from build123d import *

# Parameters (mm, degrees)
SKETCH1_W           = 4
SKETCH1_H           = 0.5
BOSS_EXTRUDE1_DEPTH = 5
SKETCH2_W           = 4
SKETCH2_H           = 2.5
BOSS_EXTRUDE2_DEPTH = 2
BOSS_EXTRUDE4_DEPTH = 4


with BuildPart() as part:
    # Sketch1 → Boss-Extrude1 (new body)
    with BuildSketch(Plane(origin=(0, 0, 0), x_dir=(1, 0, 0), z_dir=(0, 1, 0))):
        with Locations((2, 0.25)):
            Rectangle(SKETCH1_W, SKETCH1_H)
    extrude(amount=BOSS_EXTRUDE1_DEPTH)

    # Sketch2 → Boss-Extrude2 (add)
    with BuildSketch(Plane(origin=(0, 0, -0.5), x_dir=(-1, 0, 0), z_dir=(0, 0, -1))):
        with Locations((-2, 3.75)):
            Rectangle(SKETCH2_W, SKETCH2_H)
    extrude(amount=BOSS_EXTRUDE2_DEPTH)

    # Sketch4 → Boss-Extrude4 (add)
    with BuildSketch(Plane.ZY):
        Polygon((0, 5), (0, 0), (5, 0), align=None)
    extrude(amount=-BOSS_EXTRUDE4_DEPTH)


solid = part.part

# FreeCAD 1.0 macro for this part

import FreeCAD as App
import Part
import Sketcher
Q = App.Units.Quantity


def add_polygon(sketch, points):
    """Adds a closed chain of lines whose ends are joined by coincident constraints."""
    first, n = sketch.GeometryCount, len(points)
    for a, b in zip(points, points[1:] + points[:1]):
        sketch.addGeometry(Part.LineSegment(App.Vector(*a, 0), App.Vector(*b, 0)), False)
    for i in range(n):
        sketch.addConstraint(Sketcher.Constraint("Coincident", first + i, 2, first + (i + 1) % n, 1))

doc = App.newDocument("Part")
body = doc.addObject("PartDesign::Body", "Body")

# Sketch on XZ plane
sketch1 = doc.addObject("Sketcher::SketchObject", "Sketch")
body.addObject(sketch1)
sketch1.AttachmentSupport = (doc.XZ_Plane, [""])
sketch1.MapMode = "FlatFace"
add_polygon(sketch1, [(0, -0.5), (0, 0), (4, 0), (4, -0.5)])  # lines 0-3
sketch1.addConstraint([
    Sketcher.Constraint("Vertical", 0),
    Sketcher.Constraint("Horizontal", 1),
    Sketcher.Constraint("Vertical", 2),
    Sketcher.Constraint("Horizontal", 3),
    Sketcher.Constraint("Coincident", 0, 2, -1, 1),
    Sketcher.Constraint("DistanceX", 1, 1, 1, 2, Q("4 mm")),
    Sketcher.Constraint("DistanceY", 0, 1, 0, 2, Q("0.5 mm")),
])
pad1 = doc.addObject("PartDesign::Pad", "Pad")
body.addObject(pad1)
pad1.Profile = sketch1
pad1.Length = 5
pad1.Reversed = True

# Sketch on XY plane
sketch2 = doc.addObject("Sketcher::SketchObject", "Sketch001")
body.addObject(sketch2)
sketch2.AttachmentSupport = (doc.XY_Plane, [""])
sketch2.MapMode = "FlatFace"
sketch2.AttachmentOffset = App.Placement(App.Vector(0, 0, -0.5), App.Rotation())
add_polygon(sketch2, [(4, 5), (4, 2.5), (0, 2.5), (0, 5)])  # lines 0-3
sketch2.addConstraint([
    Sketcher.Constraint("Vertical", 0),
    Sketcher.Constraint("Horizontal", 1),
    Sketcher.Constraint("Vertical", 2),
    Sketcher.Constraint("Horizontal", 3),
    Sketcher.Constraint("PointOnObject", 1, 2, -2),
    Sketcher.Constraint("DistanceX", 1, 2, 1, 1, Q("4 mm")),
    Sketcher.Constraint("DistanceY", 0, 2, 0, 1, Q("2.5 mm")),
    Sketcher.Constraint("DistanceY", -1, 1, 2, 2, Q("5 mm")),
])
pad2 = doc.addObject("PartDesign::Pad", "Pad001")
body.addObject(pad2)
pad2.Profile = sketch2
pad2.Length = 2
pad2.Reversed = True

# Sketch on YZ plane
sketch3 = doc.addObject("Sketcher::SketchObject", "Sketch002")
body.addObject(sketch3)
sketch3.AttachmentSupport = (doc.YZ_Plane, [""])
sketch3.MapMode = "FlatFace"
add_polygon(sketch3, [(5, 0), (0, 0), (0, 5)])  # lines 0-2
sketch3.addConstraint([
    Sketcher.Constraint("Horizontal", 0),
    Sketcher.Constraint("Vertical", 1),
    Sketcher.Constraint("Coincident", 0, 2, -1, 1),
    Sketcher.Constraint("Equal", 0, 1),
    Sketcher.Constraint("DistanceX", 0, 2, 0, 1, Q("5 mm")),
])
pad3 = doc.addObject("PartDesign::Pad", "Pad002")
body.addObject(pad3)
pad3.Profile = sketch3
pad3.Length = 4

doc.recompute()
